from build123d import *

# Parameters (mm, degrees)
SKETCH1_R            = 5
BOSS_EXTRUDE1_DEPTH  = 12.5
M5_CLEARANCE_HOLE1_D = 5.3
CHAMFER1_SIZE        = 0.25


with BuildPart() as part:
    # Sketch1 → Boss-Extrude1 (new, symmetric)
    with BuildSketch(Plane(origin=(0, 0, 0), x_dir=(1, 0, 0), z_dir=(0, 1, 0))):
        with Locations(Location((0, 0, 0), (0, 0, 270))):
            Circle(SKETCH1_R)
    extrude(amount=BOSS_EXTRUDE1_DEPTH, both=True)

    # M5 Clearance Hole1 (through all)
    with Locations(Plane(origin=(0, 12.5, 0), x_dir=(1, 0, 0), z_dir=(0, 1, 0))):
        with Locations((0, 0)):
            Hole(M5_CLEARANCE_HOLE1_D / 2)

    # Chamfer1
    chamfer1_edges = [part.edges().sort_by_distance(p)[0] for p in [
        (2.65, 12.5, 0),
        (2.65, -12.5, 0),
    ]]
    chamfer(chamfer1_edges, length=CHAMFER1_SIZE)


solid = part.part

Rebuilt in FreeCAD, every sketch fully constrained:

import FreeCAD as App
import Part
import Sketcher

V = App.Vector


def edges_at(feature, points):
    """Names of the edges that pass closest to the given points."""
    edges = feature.Shape.Edges
    near = lambda p: min(range(len(edges)), key=lambda i: edges[i].distToShape(Part.Vertex(*p))[0])
    return sorted({f"Edge{near(p) + 1}" for p in points})

doc = App.newDocument("Part")
body = doc.addObject("PartDesign::Body", "Body")

sketch1 = body.newObject("Sketcher::SketchObject", "Sketch")
sketch1.AttachmentSupport = (doc.getObject("XZ_Plane"), [""])
sketch1.MapMode = "FlatFace"
sketch1.addGeometry(Part.Circle(V(0, 0, 0), V(0, 0, 1), 5), False)
sketch1.addConstraint([
    Sketcher.Constraint("Coincident", 0, 3, -1, 1),
    Sketcher.Constraint("Diameter", 0, 10.0),
])
pad1 = body.newObject("PartDesign::Pad", "Pad")
pad1.Profile = sketch1
pad1.Length = 25
pad1.Midplane = True

sketch2 = body.newObject("Sketcher::SketchObject", "Sketch001")
sketch2.AttachmentSupport = (doc.getObject("XZ_Plane"), [""])
sketch2.MapMode = "FlatFace"
sketch2.AttachmentOffset = App.Placement(V(0, 0, -12.5), App.Rotation())
sketch2.addGeometry(Part.Circle(V(0, 0, 0), V(0, 0, 1), 2.6), False)
sketch2.addConstraint([
    Sketcher.Constraint("Coincident", 0, 3, -1, 1),
    Sketcher.Constraint("Diameter", 0, 5.3),
])
doc.recompute()
hole = body.newObject("PartDesign::Hole", "Hole")
hole.Profile = sketch2
hole.ThreadType = "None"
hole.Diameter = 5.3
hole.DepthType = "ThroughAll"
hole.Reversed = True
doc.recompute()

chamfer = body.newObject("PartDesign::Chamfer", "Chamfer")
chamfer.Base = (hole, edges_at(hole, [(2.65, 12.5, 0), (2.65, -12.5, 0)]))
chamfer.Size = 0.25

doc.recompute()
